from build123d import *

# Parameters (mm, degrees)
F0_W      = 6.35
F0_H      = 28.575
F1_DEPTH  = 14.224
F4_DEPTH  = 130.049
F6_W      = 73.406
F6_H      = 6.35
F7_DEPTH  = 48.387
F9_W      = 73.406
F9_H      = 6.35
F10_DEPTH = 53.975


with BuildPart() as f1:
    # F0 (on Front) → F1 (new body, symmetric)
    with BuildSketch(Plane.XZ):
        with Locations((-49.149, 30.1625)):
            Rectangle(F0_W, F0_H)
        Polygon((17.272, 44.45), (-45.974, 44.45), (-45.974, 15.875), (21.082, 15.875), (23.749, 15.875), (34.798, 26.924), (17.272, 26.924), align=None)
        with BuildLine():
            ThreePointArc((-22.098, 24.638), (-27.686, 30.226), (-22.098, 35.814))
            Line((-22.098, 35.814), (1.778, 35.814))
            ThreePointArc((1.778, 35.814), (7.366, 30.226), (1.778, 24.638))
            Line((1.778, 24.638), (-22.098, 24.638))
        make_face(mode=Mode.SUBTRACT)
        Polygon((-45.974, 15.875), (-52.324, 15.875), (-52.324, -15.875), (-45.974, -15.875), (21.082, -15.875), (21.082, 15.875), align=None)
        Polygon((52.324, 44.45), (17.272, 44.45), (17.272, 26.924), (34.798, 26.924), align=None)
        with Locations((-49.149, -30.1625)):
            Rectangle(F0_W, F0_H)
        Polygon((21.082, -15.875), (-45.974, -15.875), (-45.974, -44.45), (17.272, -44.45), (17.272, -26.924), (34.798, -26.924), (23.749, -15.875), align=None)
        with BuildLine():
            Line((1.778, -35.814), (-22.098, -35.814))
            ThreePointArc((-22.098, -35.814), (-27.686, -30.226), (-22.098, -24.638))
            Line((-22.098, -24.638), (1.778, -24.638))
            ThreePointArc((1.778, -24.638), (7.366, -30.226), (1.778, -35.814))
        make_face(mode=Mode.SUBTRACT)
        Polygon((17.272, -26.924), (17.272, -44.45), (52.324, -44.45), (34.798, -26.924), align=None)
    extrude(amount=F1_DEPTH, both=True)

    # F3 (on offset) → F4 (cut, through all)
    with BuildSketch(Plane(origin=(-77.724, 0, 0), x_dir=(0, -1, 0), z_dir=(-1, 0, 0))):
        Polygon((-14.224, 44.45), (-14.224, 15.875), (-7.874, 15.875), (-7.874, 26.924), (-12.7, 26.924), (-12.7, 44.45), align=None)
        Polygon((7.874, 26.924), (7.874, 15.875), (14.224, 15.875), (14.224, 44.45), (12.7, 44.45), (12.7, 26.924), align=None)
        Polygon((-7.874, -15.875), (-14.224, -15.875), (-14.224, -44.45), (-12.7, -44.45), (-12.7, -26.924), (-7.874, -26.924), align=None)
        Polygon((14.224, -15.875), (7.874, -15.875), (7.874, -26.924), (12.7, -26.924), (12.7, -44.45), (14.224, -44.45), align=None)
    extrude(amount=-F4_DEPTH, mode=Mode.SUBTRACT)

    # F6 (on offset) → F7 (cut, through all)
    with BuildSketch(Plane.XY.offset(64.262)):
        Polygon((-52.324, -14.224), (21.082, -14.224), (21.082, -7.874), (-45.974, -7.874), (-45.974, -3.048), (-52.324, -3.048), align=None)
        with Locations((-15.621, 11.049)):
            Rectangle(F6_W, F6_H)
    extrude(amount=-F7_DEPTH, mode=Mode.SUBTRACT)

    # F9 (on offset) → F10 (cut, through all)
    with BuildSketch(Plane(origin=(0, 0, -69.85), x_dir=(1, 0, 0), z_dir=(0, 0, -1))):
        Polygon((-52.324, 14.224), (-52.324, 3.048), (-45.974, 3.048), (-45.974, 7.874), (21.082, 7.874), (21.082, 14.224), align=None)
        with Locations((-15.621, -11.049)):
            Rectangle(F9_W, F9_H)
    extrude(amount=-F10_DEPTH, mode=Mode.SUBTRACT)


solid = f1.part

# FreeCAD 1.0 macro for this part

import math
import FreeCAD as App
import Part
import Sketcher
from FreeCAD import Vector
Q = App.Units.Quantity


def add_polygon(sketch, points):
    """Adds a closed chain of lines whose ends are joined by coincident constraints."""
    first, n = sketch.GeometryCount, len(points)
    for a, b in zip(points, points[1:] + points[:1]):
        sketch.addGeometry(Part.LineSegment(App.Vector(*a, 0), App.Vector(*b, 0)), False)
    for i in range(n):
        sketch.addConstraint(Sketcher.Constraint("Coincident", first + i, 2, first + (i + 1) % n, 1))

doc = App.newDocument("Part")
body = doc.addObject("PartDesign::Body", "Body")

sketch1 = doc.addObject("Sketcher::SketchObject", "Sketch")
body.addObject(sketch1)
sketch1.AttachmentSupport = (doc.XZ_Plane, [""])
sketch1.MapMode = "FlatFace"
add_polygon(sketch1, [(-52.3, 44.5), (-52.3, -44.5), (52.3, -44.5), (23.7, -15.9), (21.1, -15.9), (21.1, 15.9), (23.7, 15.9), (52.3, 44.5)])
sketch1.addGeometry(Part.ArcOfCircle(Part.Circle(Vector(1.8, -30.2, 0), Vector(0, 0, 1), 5.6), math.radians(-90), math.radians(90)), False)
sketch1.addGeometry(Part.LineSegment(Vector(1.8, -35.8, 0), Vector(-22.1, -35.8, 0)), False)
sketch1.addGeometry(Part.ArcOfCircle(Part.Circle(Vector(-22.1, -30.2, 0), Vector(0, 0, 1), 5.6), math.radians(90), math.radians(270)), False)
sketch1.addGeometry(Part.LineSegment(Vector(-22.1, -24.6, 0), Vector(1.8, -24.6, 0)), False)
sketch1.addGeometry(Part.LineSegment(Vector(1.8, 24.6, 0), Vector(-22.1, 24.6, 0)), False)
sketch1.addGeometry(Part.ArcOfCircle(Part.Circle(Vector(-22.1, 30.2, 0), Vector(0, 0, 1), 5.6), math.radians(90), math.radians(270)), False)
sketch1.addGeometry(Part.LineSegment(Vector(-22.1, 35.8, 0), Vector(1.8, 35.8, 0)), False)
sketch1.addGeometry(Part.ArcOfCircle(Part.Circle(Vector(1.8, 30.2, 0), Vector(0, 0, 1), 5.6), math.radians(-90), math.radians(90)), False)
sketch1.addConstraint([
    Sketcher.Constraint("Tangent", 8, 1, 9, 1),
    Sketcher.Constraint("Tangent", 9, 2, 10, 2),
    Sketcher.Constraint("Tangent", 10, 1, 11, 1),
    Sketcher.Constraint("Tangent", 11, 2, 8, 2),
    Sketcher.Constraint("Tangent", 12, 2, 13, 2),
    Sketcher.Constraint("Tangent", 13, 1, 14, 1),
    Sketcher.Constraint("Tangent", 14, 2, 15, 2),
    Sketcher.Constraint("Tangent", 15, 1, 12, 1),
    Sketcher.Constraint("Vertical", 0),
    Sketcher.Constraint("Horizontal", 1),
    Sketcher.Constraint("Horizontal", 3),
    Sketcher.Constraint("Vertical", 4),
    Sketcher.Constraint("Horizontal", 5),
    Sketcher.Constraint("Horizontal", 7),
    Sketcher.Constraint("Horizontal", 9),
    Sketcher.Constraint("Horizontal", 11),
    Sketcher.Constraint("Horizontal", 12),
    Sketcher.Constraint("Horizontal", 14),
    Sketcher.Constraint("Equal", 10, 13),
    Sketcher.Constraint("Symmetric", 0, 2, 6, 2, -1, 1),
    Sketcher.Constraint("Symmetric", 10, 3, 13, 3, -1),
    Sketcher.Constraint("Symmetric", 2, 2, 5, 2, -1),
    Sketcher.Constraint("Perpendicular", 2, 6),
    Sketcher.Constraint("Vertical", 8, 3, 15, 3),
    Sketcher.Constraint("Vertical", 1, 2, 6, 2),
    Sketcher.Constraint("Radius", 8, Q("0.22 in")),
    Sketcher.Constraint("DistanceY", 0, 2, 0, 1, Q("3.5 in")),
    Sketcher.Constraint("DistanceX", 1, 1, 1, 2, Q("4.12 in")),
    Sketcher.Constraint("DistanceX", 9, 2, 9, 1, Q("0.94 in")),
    Sketcher.Constraint("DistanceY", 4, 1, 4, 2, Q("1.25 in")),
    Sketcher.Constraint("DistanceX", 10, 3, 3, 2, Q("1.7 in")),
    Sketcher.Constraint("DistanceX", 3, 2, 3, 1, Q("0.105 in")),
    Sketcher.Constraint("DistanceY", 8, 3, -1, 1, Q("1.19 in")),
])
pad1 = doc.addObject("PartDesign::Pad", "Pad")
body.addObject(pad1)
pad1.Profile = sketch1
pad1.Length = Q("1.12 in")
pad1.Midplane = True

sketch2 = doc.addObject("Sketcher::SketchObject", "Sketch001")
body.addObject(sketch2)
sketch2.AttachmentSupport = (doc.YZ_Plane, [""])
sketch2.MapMode = "FlatFace"
sketch2.AttachmentOffset = App.Placement(Vector(0, 0, -3.06 * 25.4), App.Rotation())
add_polygon(sketch2, [(14.2, 44.5), (14.2, 15.9), (7.9, 15.9), (7.9, 26.9), (12.7, 26.9), (12.7, 44.5)])
add_polygon(sketch2, [(-7.9, 26.9), (-7.9, 15.9), (-14.2, 15.9), (-14.2, 44.5), (-12.7, 44.5), (-12.7, 26.9)])
add_polygon(sketch2, [(7.9, -15.9), (14.2, -15.9), (14.2, -44.5), (12.7, -44.5), (12.7, -26.9), (7.9, -26.9)])
add_polygon(sketch2, [(-14.2, -15.9), (-7.9, -15.9), (-7.9, -26.9), (-12.7, -26.9), (-12.7, -44.5), (-14.2, -44.5)])
sketch2.addConstraint([
    Sketcher.Constraint("Vertical", 0),
    Sketcher.Constraint("Horizontal", 1),
    Sketcher.Constraint("Vertical", 2),
    Sketcher.Constraint("Horizontal", 3),
    Sketcher.Constraint("Vertical", 4),
    Sketcher.Constraint("Horizontal", 5),
    Sketcher.Constraint("Vertical", 6),
    Sketcher.Constraint("Horizontal", 7),
    Sketcher.Constraint("Vertical", 8),
    Sketcher.Constraint("Horizontal", 9),
    Sketcher.Constraint("Vertical", 10),
    Sketcher.Constraint("Horizontal", 11),
    Sketcher.Constraint("Horizontal", 12),
    Sketcher.Constraint("Vertical", 13),
    Sketcher.Constraint("Horizontal", 14),
    Sketcher.Constraint("Vertical", 15),
    Sketcher.Constraint("Horizontal", 16),
    Sketcher.Constraint("Vertical", 17),
    Sketcher.Constraint("Horizontal", 18),
    Sketcher.Constraint("Vertical", 19),
    Sketcher.Constraint("Horizontal", 20),
    Sketcher.Constraint("Vertical", 21),
    Sketcher.Constraint("Horizontal", 22),
    Sketcher.Constraint("Vertical", 23),
    Sketcher.Constraint("Symmetric", 7, 2, 12, 2, -1, 1),
    Sketcher.Constraint("Symmetric", 9, 2, 14, 2, -1, 1),
    Sketcher.Constraint("Symmetric", 11, 2, 16, 2, -1, 1),
    Sketcher.Constraint("Symmetric", 1, 2, 18, 2, -1, 1),
    Sketcher.Constraint("Symmetric", 3, 2, 20, 2, -1, 1),
    Sketcher.Constraint("Symmetric", 5, 2, 22, 2, -1, 1),
    Sketcher.Constraint("Symmetric", 1, 2, 6, 2, -2),
    Sketcher.Constraint("Symmetric", 5, 2, 8, 2, -2),
    Sketcher.Constraint("Symmetric", 3, 2, 10, 2, -2),
    Sketcher.Constraint("DistanceX", 9, 2, 4, 2, Q("1 in")),
    Sketcher.Constraint("DistanceX", 1, 2, 1, 1, Q("0.25 in")),
    Sketcher.Constraint("DistanceX", 3, 1, 3, 2, Q("0.19 in")),
    Sketcher.Constraint("DistanceY", 4, 1, 4, 2, Q("0.69 in")),
    Sketcher.Constraint("DistanceY", 0, 2, 0, 1, Q("1.125 in")),
    Sketcher.Constraint("DistanceY", -1, 1, 2, 2, Q("1.06 in")),
])
pocket1 = doc.addObject("PartDesign::Pocket", "Pocket")
body.addObject(pocket1)
pocket1.Profile = sketch2
pocket1.Type = "ThroughAll"
pocket1.Reversed = True

sketch3 = doc.addObject("Sketcher::SketchObject", "Sketch002")
body.addObject(sketch3)
sketch3.AttachmentSupport = (doc.XY_Plane, [""])
sketch3.MapMode = "FlatFace"
sketch3.AttachmentOffset = App.Placement(Vector(0, 0, 2.53 * 25.4), App.Rotation())
add_polygon(sketch3, [(-52.3, -14.2), (21.1, -14.2), (21.1, -7.9), (-46, -7.9), (-46, -3), (-52.3, -3)])
add_polygon(sketch3, [(-52.3, 14.2), (-52.3, 7.9), (21.1, 7.9), (21.1, 14.2)])
sketch3.addConstraint([
    Sketcher.Constraint("Horizontal", 0),
    Sketcher.Constraint("Vertical", 1),
    Sketcher.Constraint("Horizontal", 2),
    Sketcher.Constraint("Vertical", 3),
    Sketcher.Constraint("Horizontal", 4),
    Sketcher.Constraint("Vertical", 5),
    Sketcher.Constraint("Vertical", 6),
    Sketcher.Constraint("Horizontal", 7),
    Sketcher.Constraint("Vertical", 8),
    Sketcher.Constraint("Horizontal", 9),
    Sketcher.Constraint("Symmetric", 1, 2, 7, 2, -1),
    Sketcher.Constraint("Symmetric", 5, 2, 9, 2, -1),
    Sketcher.Constraint("Equal", 4, 1),
    Sketcher.Constraint("DistanceX", 0, 1, 0, 2, Q("2.89 in")),
    Sketcher.Constraint("DistanceX", 2, 2, 2, 1, Q("2.64 in")),
    Sketcher.Constraint("DistanceY", 3, 1, 3, 2, Q("0.19 in")),
    Sketcher.Constraint("DistanceX", -1, 1, 0, 2, Q("0.83 in")),
    Sketcher.Constraint("DistanceY", 0, 2, -1, 1, Q("0.56 in")),
])
pocket2 = doc.addObject("PartDesign::Pocket", "Pocket001")
body.addObject(pocket2)
pocket2.Profile = sketch3
pocket2.Length = Q("1.905 in")

sketch4 = doc.addObject("Sketcher::SketchObject", "Sketch003")
body.addObject(sketch4)
sketch4.AttachmentSupport = (doc.XY_Plane, [""])
sketch4.MapMode = "FlatFace"
sketch4.AttachmentOffset = App.Placement(Vector(0, 0, -2.75 * 25.4), App.Rotation())
add_polygon(sketch4, [(-52.3, -14.2), (-52.3, -3), (-46, -3), (-46, -7.9), (21.1, -7.9), (21.1, -14.2)])
add_polygon(sketch4, [(-52.3, 7.9), (-52.3, 14.2), (21.1, 14.2), (21.1, 7.9)])
sketch4.addConstraint([
    Sketcher.Constraint("Vertical", 0),
    Sketcher.Constraint("Horizontal", 1),
    Sketcher.Constraint("Vertical", 2),
    Sketcher.Constraint("Horizontal", 3),
    Sketcher.Constraint("Vertical", 4),
    Sketcher.Constraint("Horizontal", 5),
    Sketcher.Constraint("Vertical", 6),
    Sketcher.Constraint("Horizontal", 7),
    Sketcher.Constraint("Vertical", 8),
    Sketcher.Constraint("Horizontal", 9),
    Sketcher.Constraint("Symmetric", 5, 2, 6, 2, -1),
    Sketcher.Constraint("Symmetric", 3, 2, 8, 2, -1),
    Sketcher.Constraint("Equal", 1, 4),
    Sketcher.Constraint("DistanceX", 1, 1, 1, 2, Q("0.25 in")),
    Sketcher.Constraint("DistanceX", 3, 1, 3, 2, Q("2.64 in")),
    Sketcher.Constraint("DistanceY", 0, 1, 0, 2, Q("0.44 in")),
    Sketcher.Constraint("DistanceX", 0, 2, -1, 1, Q("2.06 in")),
    Sketcher.Constraint("DistanceY", 0, 2, -1, 1, Q("0.12 in")),
])
pocket3 = doc.addObject("PartDesign::Pocket", "Pocket002")
body.addObject(pocket3)
pocket3.Profile = sketch4
pocket3.Length = Q("2.125 in")
pocket3.Reversed = True

doc.recompute()
